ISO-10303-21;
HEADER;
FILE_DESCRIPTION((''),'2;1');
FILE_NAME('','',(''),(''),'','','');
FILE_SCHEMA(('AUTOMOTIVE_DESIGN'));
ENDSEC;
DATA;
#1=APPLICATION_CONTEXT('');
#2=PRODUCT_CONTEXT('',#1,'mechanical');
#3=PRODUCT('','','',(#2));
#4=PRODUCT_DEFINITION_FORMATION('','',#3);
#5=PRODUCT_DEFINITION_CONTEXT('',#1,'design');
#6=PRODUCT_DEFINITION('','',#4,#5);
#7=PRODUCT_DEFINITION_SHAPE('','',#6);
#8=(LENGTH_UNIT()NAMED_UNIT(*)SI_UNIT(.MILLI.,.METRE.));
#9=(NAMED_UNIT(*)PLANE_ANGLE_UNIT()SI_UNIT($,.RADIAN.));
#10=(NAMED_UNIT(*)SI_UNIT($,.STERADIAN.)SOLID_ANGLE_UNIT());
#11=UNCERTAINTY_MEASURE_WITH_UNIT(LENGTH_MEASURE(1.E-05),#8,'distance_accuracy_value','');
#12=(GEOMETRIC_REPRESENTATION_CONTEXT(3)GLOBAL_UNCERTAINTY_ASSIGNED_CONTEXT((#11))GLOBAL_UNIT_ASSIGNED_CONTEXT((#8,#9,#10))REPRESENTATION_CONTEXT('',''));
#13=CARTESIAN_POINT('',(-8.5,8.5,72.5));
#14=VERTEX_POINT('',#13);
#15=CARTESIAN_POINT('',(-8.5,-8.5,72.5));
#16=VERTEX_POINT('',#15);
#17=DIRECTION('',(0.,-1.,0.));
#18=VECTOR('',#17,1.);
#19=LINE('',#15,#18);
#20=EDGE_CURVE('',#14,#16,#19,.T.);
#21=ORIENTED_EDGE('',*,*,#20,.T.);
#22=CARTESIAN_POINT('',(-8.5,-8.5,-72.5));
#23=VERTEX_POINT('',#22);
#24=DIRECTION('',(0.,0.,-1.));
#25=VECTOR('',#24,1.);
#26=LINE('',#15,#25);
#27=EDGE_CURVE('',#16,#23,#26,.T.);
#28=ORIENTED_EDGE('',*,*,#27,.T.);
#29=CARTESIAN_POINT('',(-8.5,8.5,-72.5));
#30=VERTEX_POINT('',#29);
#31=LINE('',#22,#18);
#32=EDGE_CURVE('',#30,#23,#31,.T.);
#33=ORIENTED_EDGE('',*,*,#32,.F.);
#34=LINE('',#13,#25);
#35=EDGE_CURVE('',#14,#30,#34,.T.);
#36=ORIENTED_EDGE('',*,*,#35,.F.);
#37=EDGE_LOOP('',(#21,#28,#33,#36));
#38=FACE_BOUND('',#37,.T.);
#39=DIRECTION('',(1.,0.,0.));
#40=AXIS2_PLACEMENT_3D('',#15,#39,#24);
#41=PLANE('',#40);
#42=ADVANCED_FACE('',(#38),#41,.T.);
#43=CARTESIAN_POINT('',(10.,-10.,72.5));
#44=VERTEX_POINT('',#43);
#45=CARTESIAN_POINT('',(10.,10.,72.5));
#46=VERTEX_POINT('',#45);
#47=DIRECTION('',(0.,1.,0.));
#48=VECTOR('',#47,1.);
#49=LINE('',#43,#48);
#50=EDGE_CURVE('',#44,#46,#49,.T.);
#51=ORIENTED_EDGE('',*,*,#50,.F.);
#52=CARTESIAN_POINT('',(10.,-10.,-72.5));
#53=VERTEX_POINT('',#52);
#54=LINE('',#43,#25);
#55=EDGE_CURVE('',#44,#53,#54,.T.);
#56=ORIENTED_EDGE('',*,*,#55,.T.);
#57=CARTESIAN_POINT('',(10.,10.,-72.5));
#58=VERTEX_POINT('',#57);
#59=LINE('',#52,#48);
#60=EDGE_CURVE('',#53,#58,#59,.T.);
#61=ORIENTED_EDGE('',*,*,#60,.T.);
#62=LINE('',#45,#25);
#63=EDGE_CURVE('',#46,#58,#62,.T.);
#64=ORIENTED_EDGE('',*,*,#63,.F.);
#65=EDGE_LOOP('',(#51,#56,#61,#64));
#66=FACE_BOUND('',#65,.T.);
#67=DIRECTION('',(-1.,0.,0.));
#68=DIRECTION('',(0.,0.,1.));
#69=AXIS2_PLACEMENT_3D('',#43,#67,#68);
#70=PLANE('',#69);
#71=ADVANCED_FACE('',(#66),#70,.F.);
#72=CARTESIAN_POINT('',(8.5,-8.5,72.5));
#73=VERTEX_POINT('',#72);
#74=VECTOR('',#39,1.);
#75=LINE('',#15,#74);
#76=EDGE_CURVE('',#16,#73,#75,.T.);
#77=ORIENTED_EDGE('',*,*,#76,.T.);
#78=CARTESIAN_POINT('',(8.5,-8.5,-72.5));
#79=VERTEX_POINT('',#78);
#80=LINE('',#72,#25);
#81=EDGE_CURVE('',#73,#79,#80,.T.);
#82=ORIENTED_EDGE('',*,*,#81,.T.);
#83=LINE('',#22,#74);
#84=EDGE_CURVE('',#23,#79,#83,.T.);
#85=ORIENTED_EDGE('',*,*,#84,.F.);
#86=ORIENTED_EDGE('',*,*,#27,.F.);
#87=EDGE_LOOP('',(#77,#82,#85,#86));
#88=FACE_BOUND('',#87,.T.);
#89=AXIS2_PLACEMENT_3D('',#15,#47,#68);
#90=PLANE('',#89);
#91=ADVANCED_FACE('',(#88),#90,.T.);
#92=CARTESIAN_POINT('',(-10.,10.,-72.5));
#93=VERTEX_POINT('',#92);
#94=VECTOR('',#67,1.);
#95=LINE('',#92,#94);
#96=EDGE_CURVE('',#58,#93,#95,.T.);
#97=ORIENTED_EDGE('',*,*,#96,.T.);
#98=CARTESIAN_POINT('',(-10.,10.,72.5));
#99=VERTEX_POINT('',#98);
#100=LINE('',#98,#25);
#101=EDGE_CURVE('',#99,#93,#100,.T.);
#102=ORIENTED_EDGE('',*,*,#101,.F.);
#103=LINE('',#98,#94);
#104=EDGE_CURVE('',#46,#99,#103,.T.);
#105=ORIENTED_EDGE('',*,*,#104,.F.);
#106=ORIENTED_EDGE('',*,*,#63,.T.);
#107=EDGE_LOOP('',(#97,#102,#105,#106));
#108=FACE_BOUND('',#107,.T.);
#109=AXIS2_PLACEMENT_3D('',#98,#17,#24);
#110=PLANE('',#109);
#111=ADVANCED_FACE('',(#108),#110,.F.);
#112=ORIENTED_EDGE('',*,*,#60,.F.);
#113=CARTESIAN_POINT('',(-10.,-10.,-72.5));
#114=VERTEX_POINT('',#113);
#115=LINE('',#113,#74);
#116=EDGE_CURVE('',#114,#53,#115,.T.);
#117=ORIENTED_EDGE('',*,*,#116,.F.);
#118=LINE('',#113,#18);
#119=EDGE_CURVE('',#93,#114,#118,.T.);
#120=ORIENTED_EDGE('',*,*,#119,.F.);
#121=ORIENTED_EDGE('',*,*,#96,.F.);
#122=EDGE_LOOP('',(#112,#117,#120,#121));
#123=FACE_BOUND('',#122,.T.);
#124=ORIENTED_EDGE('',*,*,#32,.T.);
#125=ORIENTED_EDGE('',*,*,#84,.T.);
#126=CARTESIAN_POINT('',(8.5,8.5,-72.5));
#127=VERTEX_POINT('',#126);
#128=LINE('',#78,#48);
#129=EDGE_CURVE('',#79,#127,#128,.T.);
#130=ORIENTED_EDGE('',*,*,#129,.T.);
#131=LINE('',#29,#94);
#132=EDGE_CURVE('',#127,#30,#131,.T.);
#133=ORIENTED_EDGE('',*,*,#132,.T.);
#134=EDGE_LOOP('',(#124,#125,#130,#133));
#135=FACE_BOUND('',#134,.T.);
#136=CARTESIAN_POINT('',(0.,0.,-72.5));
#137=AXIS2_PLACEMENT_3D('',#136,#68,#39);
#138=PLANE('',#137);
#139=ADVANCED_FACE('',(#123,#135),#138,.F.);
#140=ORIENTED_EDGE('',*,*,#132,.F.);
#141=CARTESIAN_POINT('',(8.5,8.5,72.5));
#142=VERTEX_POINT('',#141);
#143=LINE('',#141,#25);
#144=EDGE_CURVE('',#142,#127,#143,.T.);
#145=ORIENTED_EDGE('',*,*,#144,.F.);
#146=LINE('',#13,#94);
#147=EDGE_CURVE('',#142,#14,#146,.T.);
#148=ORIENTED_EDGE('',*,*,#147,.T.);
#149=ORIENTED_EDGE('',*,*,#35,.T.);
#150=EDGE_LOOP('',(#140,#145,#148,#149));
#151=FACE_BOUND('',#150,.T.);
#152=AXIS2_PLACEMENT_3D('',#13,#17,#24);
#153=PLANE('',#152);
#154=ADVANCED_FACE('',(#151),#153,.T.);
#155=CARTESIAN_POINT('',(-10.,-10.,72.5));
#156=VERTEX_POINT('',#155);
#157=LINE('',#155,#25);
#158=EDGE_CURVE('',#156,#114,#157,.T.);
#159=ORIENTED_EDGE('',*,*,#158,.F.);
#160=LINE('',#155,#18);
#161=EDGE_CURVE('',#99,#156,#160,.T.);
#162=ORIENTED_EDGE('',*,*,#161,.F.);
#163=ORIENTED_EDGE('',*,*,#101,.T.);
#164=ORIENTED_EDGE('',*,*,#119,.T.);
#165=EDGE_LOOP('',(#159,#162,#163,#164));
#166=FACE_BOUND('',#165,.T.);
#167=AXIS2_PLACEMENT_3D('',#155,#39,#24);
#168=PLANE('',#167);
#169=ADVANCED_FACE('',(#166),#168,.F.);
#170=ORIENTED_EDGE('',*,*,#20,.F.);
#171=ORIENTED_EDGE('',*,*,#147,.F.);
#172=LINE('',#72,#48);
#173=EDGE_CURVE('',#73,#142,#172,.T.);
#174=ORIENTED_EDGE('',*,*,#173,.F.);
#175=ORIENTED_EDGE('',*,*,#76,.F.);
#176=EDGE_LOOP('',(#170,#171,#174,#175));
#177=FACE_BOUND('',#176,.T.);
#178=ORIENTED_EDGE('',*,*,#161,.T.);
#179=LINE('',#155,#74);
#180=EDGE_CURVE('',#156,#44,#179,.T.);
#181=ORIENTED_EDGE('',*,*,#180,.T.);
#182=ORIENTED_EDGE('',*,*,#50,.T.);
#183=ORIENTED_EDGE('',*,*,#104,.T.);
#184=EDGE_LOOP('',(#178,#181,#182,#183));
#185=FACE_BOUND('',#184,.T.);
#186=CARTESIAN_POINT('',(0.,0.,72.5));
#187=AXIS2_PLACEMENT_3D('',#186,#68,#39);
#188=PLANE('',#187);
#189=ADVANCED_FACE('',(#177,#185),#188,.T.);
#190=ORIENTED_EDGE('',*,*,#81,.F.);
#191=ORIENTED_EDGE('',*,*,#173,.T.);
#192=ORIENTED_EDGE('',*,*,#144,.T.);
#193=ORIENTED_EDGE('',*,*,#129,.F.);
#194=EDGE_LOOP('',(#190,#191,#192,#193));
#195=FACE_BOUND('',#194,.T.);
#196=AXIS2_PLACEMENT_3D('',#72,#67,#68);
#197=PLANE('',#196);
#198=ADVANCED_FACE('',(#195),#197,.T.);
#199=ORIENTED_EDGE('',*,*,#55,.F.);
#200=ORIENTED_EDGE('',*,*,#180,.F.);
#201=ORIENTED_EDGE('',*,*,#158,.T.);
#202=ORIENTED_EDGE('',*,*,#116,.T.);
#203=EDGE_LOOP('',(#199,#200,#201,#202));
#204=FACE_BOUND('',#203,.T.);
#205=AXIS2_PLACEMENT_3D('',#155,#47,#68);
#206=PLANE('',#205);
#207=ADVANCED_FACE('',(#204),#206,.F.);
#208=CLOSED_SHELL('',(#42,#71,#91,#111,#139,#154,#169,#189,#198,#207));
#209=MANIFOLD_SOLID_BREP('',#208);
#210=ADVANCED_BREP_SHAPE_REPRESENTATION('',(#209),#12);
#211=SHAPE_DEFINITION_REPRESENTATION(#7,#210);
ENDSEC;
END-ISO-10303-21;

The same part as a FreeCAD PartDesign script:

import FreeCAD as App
import Part
import Sketcher

V = App.Vector


def add_polygon(sketch, points):
    """Adds a closed chain of lines whose ends are joined by coincident constraints."""
    first, n = sketch.GeometryCount, len(points)
    for a, b in zip(points, points[1:] + points[:1]):
        sketch.addGeometry(Part.LineSegment(App.Vector(*a, 0), App.Vector(*b, 0)), False)
    for i in range(n):
        sketch.addConstraint(Sketcher.Constraint("Coincident", first + i, 2, first + (i + 1) % n, 1))

doc = App.newDocument("Part")
body = doc.addObject("PartDesign::Body", "Body")

# Sketch on XY plane
sketch1 = doc.addObject("Sketcher::SketchObject", "Sketch")
body.addObject(sketch1)
sketch1.AttachmentSupport = (doc.XY_Plane, [""])
sketch1.MapMode = "FlatFace"
add_polygon(sketch1, [(-10, 10), (-10, -10), (10, -10), (10, 10)])  # lines 0-3
add_polygon(sketch1, [(8.5, -8.5), (-8.5, -8.5), (-8.5, 8.5), (8.5, 8.5)])  # lines 4-7
sketch1.addConstraint(Sketcher.Constraint("Vertical", 0))
sketch1.addConstraint(Sketcher.Constraint("Horizontal", 1))
sketch1.addConstraint(Sketcher.Constraint("Vertical", 2))
sketch1.addConstraint(Sketcher.Constraint("Horizontal", 3))
sketch1.addConstraint(Sketcher.Constraint("Horizontal", 4))
sketch1.addConstraint(Sketcher.Constraint("Vertical", 5))
sketch1.addConstraint(Sketcher.Constraint("Horizontal", 6))
sketch1.addConstraint(Sketcher.Constraint("Vertical", 7))
sketch1.addConstraint(Sketcher.Constraint("Symmetric", 0, 2, 2, 2, -1, 1))
sketch1.addConstraint(Sketcher.Constraint("Symmetric", 4, 2, 6, 2, -1, 1))
sketch1.addConstraint(Sketcher.Constraint("Equal", 3, 0))
sketch1.addConstraint(Sketcher.Constraint("Equal", 6, 5))
sketch1.addConstraint(Sketcher.Constraint("DistanceX", 1, 1, 1, 2, 20.0))
sketch1.addConstraint(Sketcher.Constraint("DistanceX", 4, 2, 4, 1, 17.0))
pad1 = doc.addObject("PartDesign::Pad", "Pad")
body.addObject(pad1)
pad1.Profile = sketch1
pad1.Length = 145
pad1.Midplane = True

doc.recompute()
